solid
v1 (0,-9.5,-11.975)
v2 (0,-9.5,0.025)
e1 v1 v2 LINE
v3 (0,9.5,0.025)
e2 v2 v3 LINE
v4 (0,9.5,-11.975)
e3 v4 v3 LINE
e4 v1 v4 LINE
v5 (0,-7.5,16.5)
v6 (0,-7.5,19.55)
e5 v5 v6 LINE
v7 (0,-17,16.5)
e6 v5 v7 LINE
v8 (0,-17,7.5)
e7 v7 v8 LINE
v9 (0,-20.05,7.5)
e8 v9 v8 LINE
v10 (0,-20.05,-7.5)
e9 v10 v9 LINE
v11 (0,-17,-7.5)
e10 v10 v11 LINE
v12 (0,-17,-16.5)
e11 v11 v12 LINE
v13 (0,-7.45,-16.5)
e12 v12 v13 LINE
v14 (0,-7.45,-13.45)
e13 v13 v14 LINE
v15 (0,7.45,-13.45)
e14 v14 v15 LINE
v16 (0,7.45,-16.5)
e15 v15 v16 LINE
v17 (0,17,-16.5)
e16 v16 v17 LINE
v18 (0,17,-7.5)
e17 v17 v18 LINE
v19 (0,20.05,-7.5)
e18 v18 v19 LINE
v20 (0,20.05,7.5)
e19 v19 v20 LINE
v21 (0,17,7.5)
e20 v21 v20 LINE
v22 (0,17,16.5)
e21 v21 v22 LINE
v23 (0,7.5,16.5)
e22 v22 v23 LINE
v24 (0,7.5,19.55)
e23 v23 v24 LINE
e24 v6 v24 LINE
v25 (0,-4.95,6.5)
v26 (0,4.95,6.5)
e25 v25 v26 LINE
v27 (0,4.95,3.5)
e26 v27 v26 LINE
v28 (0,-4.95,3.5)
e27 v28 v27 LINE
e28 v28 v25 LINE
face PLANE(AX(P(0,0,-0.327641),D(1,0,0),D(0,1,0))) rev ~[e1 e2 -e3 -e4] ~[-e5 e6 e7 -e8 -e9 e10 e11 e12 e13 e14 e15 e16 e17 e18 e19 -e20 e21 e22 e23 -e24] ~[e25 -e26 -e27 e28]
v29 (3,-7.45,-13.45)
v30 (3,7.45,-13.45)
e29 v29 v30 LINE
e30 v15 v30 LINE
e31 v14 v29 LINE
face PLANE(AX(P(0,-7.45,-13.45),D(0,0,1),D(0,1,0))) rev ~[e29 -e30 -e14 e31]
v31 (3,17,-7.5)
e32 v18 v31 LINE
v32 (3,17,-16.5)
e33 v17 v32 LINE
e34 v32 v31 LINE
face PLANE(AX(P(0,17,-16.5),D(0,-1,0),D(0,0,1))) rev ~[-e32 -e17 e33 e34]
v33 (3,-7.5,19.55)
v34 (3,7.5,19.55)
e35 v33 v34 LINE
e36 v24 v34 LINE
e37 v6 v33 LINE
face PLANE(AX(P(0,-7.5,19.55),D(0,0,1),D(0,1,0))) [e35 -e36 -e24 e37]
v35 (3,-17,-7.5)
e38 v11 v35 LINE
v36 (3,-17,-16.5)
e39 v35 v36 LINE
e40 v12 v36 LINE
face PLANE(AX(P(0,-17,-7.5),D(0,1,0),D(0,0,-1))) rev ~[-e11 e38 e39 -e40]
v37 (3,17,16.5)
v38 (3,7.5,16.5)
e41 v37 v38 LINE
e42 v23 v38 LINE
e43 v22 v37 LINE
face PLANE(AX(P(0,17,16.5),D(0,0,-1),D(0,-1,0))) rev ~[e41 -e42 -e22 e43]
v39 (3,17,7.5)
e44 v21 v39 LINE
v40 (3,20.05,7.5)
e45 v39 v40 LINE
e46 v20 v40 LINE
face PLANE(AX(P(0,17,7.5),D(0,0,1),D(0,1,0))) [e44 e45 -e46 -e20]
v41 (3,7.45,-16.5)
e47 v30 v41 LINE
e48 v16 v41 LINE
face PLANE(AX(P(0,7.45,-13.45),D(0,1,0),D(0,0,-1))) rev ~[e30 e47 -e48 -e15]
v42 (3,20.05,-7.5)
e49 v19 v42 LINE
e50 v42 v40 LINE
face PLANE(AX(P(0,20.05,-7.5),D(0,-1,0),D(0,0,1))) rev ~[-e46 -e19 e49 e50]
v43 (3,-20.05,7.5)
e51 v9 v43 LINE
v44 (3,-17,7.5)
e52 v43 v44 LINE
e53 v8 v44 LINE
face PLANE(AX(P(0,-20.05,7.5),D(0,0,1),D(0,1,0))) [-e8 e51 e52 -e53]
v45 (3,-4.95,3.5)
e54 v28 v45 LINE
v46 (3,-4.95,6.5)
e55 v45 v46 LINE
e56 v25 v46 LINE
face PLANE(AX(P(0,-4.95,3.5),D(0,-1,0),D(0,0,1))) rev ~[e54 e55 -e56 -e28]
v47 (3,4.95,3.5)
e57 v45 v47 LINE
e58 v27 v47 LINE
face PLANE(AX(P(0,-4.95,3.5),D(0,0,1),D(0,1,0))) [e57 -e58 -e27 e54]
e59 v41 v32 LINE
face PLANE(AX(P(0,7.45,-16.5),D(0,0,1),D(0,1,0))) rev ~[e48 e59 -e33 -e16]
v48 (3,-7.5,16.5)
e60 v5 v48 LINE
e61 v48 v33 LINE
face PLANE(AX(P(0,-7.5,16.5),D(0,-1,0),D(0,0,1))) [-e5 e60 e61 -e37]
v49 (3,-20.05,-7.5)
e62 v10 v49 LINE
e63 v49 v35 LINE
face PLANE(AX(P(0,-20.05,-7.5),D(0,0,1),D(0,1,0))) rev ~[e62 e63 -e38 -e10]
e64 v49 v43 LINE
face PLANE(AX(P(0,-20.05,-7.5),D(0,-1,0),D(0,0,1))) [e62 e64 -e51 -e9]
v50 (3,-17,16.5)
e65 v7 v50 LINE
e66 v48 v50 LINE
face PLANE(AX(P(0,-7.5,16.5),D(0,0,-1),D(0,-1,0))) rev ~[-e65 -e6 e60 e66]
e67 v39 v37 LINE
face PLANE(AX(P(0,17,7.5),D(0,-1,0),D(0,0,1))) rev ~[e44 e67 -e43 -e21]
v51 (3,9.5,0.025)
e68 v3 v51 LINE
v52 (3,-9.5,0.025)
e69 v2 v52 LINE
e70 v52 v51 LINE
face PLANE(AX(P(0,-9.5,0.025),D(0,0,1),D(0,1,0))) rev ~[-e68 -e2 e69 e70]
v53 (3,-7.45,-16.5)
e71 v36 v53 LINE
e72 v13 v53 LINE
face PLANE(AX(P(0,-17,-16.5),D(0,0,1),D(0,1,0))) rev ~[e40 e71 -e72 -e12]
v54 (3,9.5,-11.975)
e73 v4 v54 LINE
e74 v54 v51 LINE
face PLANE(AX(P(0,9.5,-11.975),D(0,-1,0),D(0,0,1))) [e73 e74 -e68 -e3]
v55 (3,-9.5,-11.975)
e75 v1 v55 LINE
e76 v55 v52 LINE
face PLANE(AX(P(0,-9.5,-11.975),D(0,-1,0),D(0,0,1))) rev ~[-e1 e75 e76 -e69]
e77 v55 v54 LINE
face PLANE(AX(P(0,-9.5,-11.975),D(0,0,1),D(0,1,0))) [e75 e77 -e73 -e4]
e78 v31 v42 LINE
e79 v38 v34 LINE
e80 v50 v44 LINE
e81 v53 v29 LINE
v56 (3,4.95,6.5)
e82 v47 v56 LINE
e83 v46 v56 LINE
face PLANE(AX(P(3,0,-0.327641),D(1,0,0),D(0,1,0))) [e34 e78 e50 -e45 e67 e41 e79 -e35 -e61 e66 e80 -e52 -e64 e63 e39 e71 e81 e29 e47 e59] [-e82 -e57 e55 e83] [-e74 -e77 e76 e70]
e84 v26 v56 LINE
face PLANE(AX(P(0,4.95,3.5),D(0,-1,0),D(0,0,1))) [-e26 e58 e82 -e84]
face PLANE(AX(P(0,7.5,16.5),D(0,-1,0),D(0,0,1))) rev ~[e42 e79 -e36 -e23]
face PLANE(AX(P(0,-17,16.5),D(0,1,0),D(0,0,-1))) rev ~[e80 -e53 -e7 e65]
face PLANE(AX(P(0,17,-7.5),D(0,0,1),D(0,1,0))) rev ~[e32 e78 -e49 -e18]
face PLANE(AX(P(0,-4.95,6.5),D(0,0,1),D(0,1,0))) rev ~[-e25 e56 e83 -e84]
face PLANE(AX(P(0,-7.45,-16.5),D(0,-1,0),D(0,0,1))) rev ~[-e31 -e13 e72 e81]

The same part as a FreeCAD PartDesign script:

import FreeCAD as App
import Part
import Sketcher
from FreeCAD import Vector


def add_polygon(sketch, points):
    """Adds a closed chain of lines whose ends are joined by coincident constraints."""
    first, n = sketch.GeometryCount, len(points)
    for a, b in zip(points, points[1:] + points[:1]):
        sketch.addGeometry(Part.LineSegment(App.Vector(*a, 0), App.Vector(*b, 0)), False)
    for i in range(n):
        sketch.addConstraint(Sketcher.Constraint("Coincident", first + i, 2, first + (i + 1) % n, 1))

doc = App.newDocument("Part")
body = doc.addObject("PartDesign::Body", "Body")

sketch1 = body.newObject("Sketcher::SketchObject", "Sketch")
sketch1.AttachmentSupport = (doc.getObject("YZ_Plane"), [""])
sketch1.MapMode = "FlatFace"
add_polygon(sketch1, [(17, 16.5), (7.5, 16.5), (7.5, 19.6), (-7.5, 19.6), (-7.5, 16.5), (-17, 16.5), (-17, 7.5), (-20.1, 7.5), (-20.1, -7.5), (-17, -7.5), (-17, -16.5), (-7.5, -16.5), (-7.5, -13.4), (7.5, -13.4), (7.5, -16.5), (17, -16.5), (17, -7.5), (20.1, -7.5), (20.1, 7.5), (17, 7.5)])
add_polygon(sketch1, [(9.5, -12), (-9.5, -12), (-9.5, 0), (9.5, 0)])
add_polygon(sketch1, [(5, 3.5), (-5, 3.5), (-5, 6.5), (5, 6.5)])
sketch1.addConstraint([
    Sketcher.Constraint("Horizontal", 0),
    Sketcher.Constraint("Vertical", 1),
    Sketcher.Constraint("Horizontal", 2),
    Sketcher.Constraint("Vertical", 3),
    Sketcher.Constraint("Horizontal", 4),
    Sketcher.Constraint("Vertical", 5),
    Sketcher.Constraint("Horizontal", 6),
    Sketcher.Constraint("Vertical", 7),
    Sketcher.Constraint("Horizontal", 8),
    Sketcher.Constraint("Vertical", 9),
    Sketcher.Constraint("Horizontal", 10),
    Sketcher.Constraint("Vertical", 11),
    Sketcher.Constraint("Horizontal", 12),
    Sketcher.Constraint("Vertical", 13),
    Sketcher.Constraint("Horizontal", 14),
    Sketcher.Constraint("Vertical", 15),
    Sketcher.Constraint("Horizontal", 16),
    Sketcher.Constraint("Vertical", 17),
    Sketcher.Constraint("Horizontal", 18),
    Sketcher.Constraint("Vertical", 19),
    Sketcher.Constraint("Horizontal", 20),
    Sketcher.Constraint("Vertical", 21),
    Sketcher.Constraint("Horizontal", 22),
    Sketcher.Constraint("Vertical", 23),
    Sketcher.Constraint("Horizontal", 24),
    Sketcher.Constraint("Vertical", 25),
    Sketcher.Constraint("Horizontal", 26),
    Sketcher.Constraint("Vertical", 27),
    Sketcher.Constraint("Symmetric", 4, 2, 14, 2, -1, 1),
    Sketcher.Constraint("Symmetric", 6, 2, 16, 2, -1, 1),
    Sketcher.Constraint("Symmetric", 8, 2, 18, 2, -1, 1),
    Sketcher.Constraint("Symmetric", 0, 2, 3, 2, -2),
    Sketcher.Constraint("Symmetric", 10, 2, 13, 2, -2),
    Sketcher.Constraint("Symmetric", 8, 2, 15, 2, -2),
    Sketcher.Constraint("Equal", 18, 1),
    Sketcher.Constraint("Equal", 2, 7),
    Sketcher.Constraint("Equal", 3, 11),
    Sketcher.Constraint("DistanceX", 2, 2, 2, 1, 15.0),
    Sketcher.Constraint("DistanceX", 20, 2, 20, 1, 19.0),
    Sketcher.Constraint("DistanceY", 5, 2, 5, 1, 9.0),
    Sketcher.Constraint("DistanceY", 21, 1, 21, 2, 12.0),
    Sketcher.Constraint("DistanceY", 25, 1, 25, 2, 3.0),
    Sketcher.Constraint("DistanceX", 0, 2, 0, 1, 9.5),
    Sketcher.Constraint("DistanceX", 12, 1, 12, 2, 14.9),
    Sketcher.Constraint("DistanceX", 24, 2, 24, 1, 9.9),
    Sketcher.Constraint("DistanceY", 24, 2, 5, 2, 4.0),
    Sketcher.Constraint("DistanceX", 6, 2, 6, 1, 3.05),
    Sketcher.Constraint("DistanceX", 20, 2, -1, 1, 9.5),
    Sketcher.Constraint("DistanceX", 6, 2, 24, 2, 15.1),
    Sketcher.Constraint("DistanceY", 20, 2, -1, 1, 11.975),
])
pad1 = body.newObject("PartDesign::Pad", "Pad")
pad1.Profile = sketch1
pad1.Length = 3

doc.recompute()
